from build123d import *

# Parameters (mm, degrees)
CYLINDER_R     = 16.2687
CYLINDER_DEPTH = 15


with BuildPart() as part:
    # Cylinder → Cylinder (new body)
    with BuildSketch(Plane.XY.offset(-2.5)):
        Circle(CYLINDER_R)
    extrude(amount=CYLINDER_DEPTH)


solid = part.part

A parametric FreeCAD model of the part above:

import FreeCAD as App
import Part
import Sketcher

V = App.Vector
Q = App.Units.Quantity

doc = App.newDocument("Part")
params = doc.addObject("Spreadsheet::Sheet", "Params")
for row, (alias, value) in enumerate([
    ("pad1_length", "15 mm"),
], start=1):
    params.set(f"A{row}", alias)
    params.set(f"B{row}", "=" + value)
    params.setAlias(f"B{row}", alias)

body = doc.addObject("PartDesign::Body", "Body")

# Sketch on XY plane
sketch1 = doc.addObject("Sketcher::SketchObject", "Sketch")
body.addObject(sketch1)
sketch1.AttachmentSupport = (doc.XY_Plane, [""])
sketch1.MapMode = "FlatFace"
sketch1.AttachmentOffset = App.Placement(V(0, 0, -2.5), App.Rotation())
sketch1.addGeometry(Part.Circle(V(0, 0, 0), V(0, 0, 1), 16), False)
sketch1.addConstraint([
    Sketcher.Constraint("Coincident", 0, 3, -1, 1),
    Sketcher.Constraint("Diameter", 0, Q("32.5374 mm")),
])
pad1 = doc.addObject("PartDesign::Pad", "Pad")
body.addObject(pad1)
pad1.Profile = sketch1
pad1.setExpression("Length", "Params.pad1_length")

doc.recompute()
